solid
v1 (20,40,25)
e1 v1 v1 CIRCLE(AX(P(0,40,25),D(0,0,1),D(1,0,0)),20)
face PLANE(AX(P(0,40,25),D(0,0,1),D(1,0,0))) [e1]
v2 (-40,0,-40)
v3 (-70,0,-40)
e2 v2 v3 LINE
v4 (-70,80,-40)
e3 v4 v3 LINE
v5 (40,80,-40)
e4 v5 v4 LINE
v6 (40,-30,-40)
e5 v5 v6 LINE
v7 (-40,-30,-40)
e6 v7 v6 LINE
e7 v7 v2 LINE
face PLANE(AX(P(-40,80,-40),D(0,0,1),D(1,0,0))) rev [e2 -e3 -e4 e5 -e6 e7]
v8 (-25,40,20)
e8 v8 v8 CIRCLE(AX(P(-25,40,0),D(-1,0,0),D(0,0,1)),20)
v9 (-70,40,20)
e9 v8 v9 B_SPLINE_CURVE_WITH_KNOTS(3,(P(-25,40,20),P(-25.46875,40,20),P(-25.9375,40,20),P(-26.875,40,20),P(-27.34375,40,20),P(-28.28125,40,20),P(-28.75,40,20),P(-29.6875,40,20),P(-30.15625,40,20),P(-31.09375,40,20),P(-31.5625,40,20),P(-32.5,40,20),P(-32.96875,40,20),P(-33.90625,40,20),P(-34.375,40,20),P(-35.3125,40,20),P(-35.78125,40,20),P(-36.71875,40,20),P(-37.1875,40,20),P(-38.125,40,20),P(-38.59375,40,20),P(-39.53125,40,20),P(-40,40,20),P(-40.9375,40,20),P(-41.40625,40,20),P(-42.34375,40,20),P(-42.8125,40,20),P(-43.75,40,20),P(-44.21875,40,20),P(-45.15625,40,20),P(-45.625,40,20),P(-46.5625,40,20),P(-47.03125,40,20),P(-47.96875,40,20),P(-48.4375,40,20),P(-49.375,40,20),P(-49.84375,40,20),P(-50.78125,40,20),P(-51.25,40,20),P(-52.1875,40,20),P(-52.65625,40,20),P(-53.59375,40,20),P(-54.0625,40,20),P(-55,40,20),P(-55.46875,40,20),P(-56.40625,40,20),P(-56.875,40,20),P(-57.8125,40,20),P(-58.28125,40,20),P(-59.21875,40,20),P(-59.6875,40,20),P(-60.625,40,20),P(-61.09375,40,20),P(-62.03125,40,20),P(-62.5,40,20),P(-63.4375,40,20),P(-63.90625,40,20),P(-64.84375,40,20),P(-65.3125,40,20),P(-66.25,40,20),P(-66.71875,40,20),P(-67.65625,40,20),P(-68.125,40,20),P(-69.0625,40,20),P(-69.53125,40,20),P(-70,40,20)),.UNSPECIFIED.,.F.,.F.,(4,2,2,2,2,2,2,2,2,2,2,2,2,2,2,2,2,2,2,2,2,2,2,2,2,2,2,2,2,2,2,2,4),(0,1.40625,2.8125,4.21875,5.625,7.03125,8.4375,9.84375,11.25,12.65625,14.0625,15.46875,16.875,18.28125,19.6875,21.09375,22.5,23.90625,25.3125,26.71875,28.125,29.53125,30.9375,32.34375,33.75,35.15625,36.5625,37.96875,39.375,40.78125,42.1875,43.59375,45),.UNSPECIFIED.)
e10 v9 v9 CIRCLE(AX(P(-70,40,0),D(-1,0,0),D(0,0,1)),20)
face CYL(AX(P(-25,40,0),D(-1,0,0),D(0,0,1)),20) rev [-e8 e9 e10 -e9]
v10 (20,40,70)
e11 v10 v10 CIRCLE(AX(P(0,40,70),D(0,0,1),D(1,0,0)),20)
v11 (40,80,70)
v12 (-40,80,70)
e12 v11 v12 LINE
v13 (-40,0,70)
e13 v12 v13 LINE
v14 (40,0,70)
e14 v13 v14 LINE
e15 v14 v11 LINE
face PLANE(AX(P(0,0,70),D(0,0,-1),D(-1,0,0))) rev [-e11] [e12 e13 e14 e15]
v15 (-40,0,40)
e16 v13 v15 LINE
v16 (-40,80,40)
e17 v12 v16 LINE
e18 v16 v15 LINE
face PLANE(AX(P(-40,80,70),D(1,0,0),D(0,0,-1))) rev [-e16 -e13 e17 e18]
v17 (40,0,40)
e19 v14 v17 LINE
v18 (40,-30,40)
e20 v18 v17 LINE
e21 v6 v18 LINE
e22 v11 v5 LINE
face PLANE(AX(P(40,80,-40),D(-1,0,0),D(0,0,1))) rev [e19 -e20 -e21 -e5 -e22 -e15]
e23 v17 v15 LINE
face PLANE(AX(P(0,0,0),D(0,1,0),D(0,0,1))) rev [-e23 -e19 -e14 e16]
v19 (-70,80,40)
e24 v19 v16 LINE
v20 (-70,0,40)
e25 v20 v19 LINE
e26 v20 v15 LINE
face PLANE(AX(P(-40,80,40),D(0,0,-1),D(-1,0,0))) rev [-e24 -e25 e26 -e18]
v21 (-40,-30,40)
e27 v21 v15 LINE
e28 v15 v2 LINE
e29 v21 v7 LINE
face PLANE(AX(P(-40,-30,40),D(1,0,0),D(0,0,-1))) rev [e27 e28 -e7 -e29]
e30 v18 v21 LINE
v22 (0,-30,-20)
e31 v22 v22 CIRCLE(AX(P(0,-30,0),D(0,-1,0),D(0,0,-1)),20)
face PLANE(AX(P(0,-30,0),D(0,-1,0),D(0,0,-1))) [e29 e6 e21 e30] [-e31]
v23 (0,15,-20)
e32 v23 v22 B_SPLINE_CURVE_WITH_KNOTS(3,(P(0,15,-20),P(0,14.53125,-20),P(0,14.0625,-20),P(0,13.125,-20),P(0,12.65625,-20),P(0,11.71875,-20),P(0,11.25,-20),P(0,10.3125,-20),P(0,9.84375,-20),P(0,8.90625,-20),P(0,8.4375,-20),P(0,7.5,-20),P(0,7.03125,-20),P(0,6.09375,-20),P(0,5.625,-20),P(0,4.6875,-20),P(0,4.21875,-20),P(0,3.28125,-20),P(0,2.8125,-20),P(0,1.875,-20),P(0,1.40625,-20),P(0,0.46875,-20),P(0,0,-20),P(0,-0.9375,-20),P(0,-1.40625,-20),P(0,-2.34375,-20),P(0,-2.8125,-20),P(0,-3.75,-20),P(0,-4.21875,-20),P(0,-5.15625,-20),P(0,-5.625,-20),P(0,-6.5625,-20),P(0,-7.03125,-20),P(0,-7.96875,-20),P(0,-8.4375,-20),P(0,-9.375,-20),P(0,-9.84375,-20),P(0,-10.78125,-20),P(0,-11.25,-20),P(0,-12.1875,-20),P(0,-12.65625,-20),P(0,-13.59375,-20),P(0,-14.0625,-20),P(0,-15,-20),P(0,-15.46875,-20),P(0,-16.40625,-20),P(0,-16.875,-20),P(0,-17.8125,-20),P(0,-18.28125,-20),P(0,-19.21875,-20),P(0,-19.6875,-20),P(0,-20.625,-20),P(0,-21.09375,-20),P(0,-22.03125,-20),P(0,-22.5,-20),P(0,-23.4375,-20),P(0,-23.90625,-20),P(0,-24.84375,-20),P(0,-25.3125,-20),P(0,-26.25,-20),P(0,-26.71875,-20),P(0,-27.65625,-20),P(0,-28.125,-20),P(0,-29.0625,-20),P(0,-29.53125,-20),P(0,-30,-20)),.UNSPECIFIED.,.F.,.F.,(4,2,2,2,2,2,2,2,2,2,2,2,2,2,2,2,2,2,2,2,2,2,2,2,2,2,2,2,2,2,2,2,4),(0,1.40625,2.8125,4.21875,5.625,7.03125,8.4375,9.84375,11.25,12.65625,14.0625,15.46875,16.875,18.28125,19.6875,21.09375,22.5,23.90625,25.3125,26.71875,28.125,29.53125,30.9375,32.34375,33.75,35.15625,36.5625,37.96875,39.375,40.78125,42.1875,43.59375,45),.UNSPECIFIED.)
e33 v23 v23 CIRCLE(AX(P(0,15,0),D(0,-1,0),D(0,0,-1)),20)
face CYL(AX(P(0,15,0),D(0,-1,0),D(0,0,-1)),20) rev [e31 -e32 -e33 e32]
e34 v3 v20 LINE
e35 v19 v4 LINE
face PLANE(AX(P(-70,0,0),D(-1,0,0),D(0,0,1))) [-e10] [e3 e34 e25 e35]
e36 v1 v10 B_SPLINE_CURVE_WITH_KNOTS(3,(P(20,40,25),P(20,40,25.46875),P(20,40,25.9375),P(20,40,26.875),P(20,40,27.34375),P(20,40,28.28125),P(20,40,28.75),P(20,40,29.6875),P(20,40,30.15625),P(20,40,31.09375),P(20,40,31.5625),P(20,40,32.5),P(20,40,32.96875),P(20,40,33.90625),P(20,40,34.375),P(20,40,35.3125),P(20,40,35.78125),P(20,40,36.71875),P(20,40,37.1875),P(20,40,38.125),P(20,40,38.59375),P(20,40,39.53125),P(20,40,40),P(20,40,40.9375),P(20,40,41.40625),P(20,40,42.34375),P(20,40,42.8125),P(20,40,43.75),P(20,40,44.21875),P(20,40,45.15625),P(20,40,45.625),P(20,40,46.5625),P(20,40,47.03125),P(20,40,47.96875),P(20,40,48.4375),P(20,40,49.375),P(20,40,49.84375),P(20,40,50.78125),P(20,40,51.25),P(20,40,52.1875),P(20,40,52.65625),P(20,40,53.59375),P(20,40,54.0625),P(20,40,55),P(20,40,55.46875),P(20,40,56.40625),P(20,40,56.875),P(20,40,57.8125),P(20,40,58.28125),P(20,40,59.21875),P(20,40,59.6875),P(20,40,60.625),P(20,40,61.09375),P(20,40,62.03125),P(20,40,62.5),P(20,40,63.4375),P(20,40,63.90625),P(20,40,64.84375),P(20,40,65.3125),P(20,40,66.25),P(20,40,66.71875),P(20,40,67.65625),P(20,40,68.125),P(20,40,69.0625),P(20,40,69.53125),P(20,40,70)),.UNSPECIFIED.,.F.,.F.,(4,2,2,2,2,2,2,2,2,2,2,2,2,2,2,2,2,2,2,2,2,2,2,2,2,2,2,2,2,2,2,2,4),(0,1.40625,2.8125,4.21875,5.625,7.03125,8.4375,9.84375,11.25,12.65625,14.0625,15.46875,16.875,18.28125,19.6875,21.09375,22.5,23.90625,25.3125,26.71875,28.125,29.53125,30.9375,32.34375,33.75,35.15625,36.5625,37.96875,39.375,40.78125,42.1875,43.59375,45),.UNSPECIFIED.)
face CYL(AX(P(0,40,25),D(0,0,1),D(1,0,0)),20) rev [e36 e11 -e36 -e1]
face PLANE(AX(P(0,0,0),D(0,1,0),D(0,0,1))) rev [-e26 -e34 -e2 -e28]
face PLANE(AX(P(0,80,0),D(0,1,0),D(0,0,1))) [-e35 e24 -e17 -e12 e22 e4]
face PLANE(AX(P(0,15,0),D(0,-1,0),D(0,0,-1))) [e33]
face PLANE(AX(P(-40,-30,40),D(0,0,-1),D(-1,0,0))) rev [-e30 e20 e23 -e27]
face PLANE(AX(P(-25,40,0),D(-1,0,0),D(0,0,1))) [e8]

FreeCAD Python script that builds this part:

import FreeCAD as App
import Part
import Sketcher
Q = App.Units.Quantity


def add_polygon(sketch, points):
    """Adds a closed chain of lines whose ends are joined by coincident constraints."""
    first, n = sketch.GeometryCount, len(points)
    for a, b in zip(points, points[1:] + points[:1]):
        sketch.addGeometry(Part.LineSegment(App.Vector(*a, 0), App.Vector(*b, 0)), False)
    for i in range(n):
        sketch.addConstraint(Sketcher.Constraint("Coincident", first + i, 2, first + (i + 1) % n, 1))

doc = App.newDocument("Part")
params = doc.addObject("Spreadsheet::Sheet", "Params")
for row, (alias, value) in enumerate([
    ("sketch1_width", "80 mm"),
    ("pad1_length", "80 mm"),
    ("sketch2_width", "80 mm"),
    ("pad2_length", "30 mm"),
    ("sketch3_width", "80 mm"),
    ("pad3_length", "30 mm"),
    ("sketch4_width", "80 mm"),
    ("pad4_length", "30 mm"),
    ("sketch5_diameter", "40 mm"),
    ("pocket1_length", "45 mm"),
    ("sketch6_diameter", "40 mm"),
    ("pocket2_length", "45 mm"),
    ("sketch7_diameter", "40 mm"),
    ("pocket3_length", "45 mm"),
], start=1):
    params.set(f"A{row}", alias)
    params.set(f"B{row}", "=" + value)
    params.setAlias(f"B{row}", alias)

body = doc.addObject("PartDesign::Body", "Body")

# Sketch on XZ plane
sketch1 = body.newObject("Sketcher::SketchObject", "Sketch")
sketch1.AttachmentSupport = (doc.getObject("XZ_Plane"), [""])
sketch1.MapMode = "FlatFace"
add_polygon(sketch1, [(-40, -40), (-40, 40), (40, 40), (40, -40)])  # lines 0-3
sketch1.addConstraint([
    Sketcher.Constraint("Vertical", 0),
    Sketcher.Constraint("Horizontal", 1),
    Sketcher.Constraint("Vertical", 2),
    Sketcher.Constraint("Horizontal", 3),
    Sketcher.Constraint("Symmetric", 0, 2, 2, 2, -1, 1),
    Sketcher.Constraint("Equal", 3, 0),
    Sketcher.Constraint("DistanceX", 1, 1, 1, 2, Q("80 mm")),
])
sketch1.setExpression("Constraints[10]", "Params.sketch1_width")
pad1 = body.newObject("PartDesign::Pad", "Pad")
pad1.Profile = sketch1
pad1.setExpression("Length", "Params.pad1_length")
pad1.Reversed = True

# Sketch on YZ plane
sketch2 = body.newObject("Sketcher::SketchObject", "Sketch001")
sketch2.AttachmentSupport = (doc.getObject("YZ_Plane"), [""])
sketch2.MapMode = "FlatFace"
sketch2.AttachmentOffset = App.Placement(App.Vector(0, 0, -40), App.Rotation())
add_polygon(sketch2, [(80, -40), (0, -40), (0, 40), (80, 40)])  # lines 0-3
sketch2.addConstraint([
    Sketcher.Constraint("Horizontal", 0),
    Sketcher.Constraint("Vertical", 1),
    Sketcher.Constraint("Horizontal", 2),
    Sketcher.Constraint("Vertical", 3),
    Sketcher.Constraint("Symmetric", 0, 2, 1, 2, -1, 1),
    Sketcher.Constraint("Equal", 2, 1),
    Sketcher.Constraint("DistanceX", 0, 2, 0, 1, Q("80 mm")),
])
sketch2.setExpression("Constraints[10]", "Params.sketch2_width")
pad2 = body.newObject("PartDesign::Pad", "Pad001")
pad2.Profile = sketch2
pad2.setExpression("Length", "Params.pad2_length")
pad2.Reversed = True

# Sketch on XY plane
sketch3 = body.newObject("Sketcher::SketchObject", "Sketch002")
sketch3.AttachmentSupport = (doc.getObject("XY_Plane"), [""])
sketch3.MapMode = "FlatFace"
sketch3.AttachmentOffset = App.Placement(App.Vector(0, 0, 40), App.Rotation())
add_polygon(sketch3, [(-40, 80), (-40, 0), (40, 0), (40, 80)])  # lines 0-3
sketch3.addConstraint([
    Sketcher.Constraint("Vertical", 0),
    Sketcher.Constraint("Horizontal", 1),
    Sketcher.Constraint("Vertical", 2),
    Sketcher.Constraint("Horizontal", 3),
    Sketcher.Constraint("Symmetric", 0, 2, 1, 2, -1, 1),
    Sketcher.Constraint("Equal", 3, 0),
    Sketcher.Constraint("DistanceX", 1, 1, 1, 2, Q("80 mm")),
])
sketch3.setExpression("Constraints[10]", "Params.sketch3_width")
pad3 = body.newObject("PartDesign::Pad", "Pad002")
pad3.Profile = sketch3
pad3.setExpression("Length", "Params.pad3_length")

# Sketch on XZ plane
sketch4 = body.newObject("Sketcher::SketchObject", "Sketch003")
sketch4.AttachmentSupport = (doc.getObject("XZ_Plane"), [""])
sketch4.MapMode = "FlatFace"
add_polygon(sketch4, [(-40, 40), (-40, -40), (40, -40), (40, 40)])  # lines 0-3
sketch4.addConstraint([
    Sketcher.Constraint("Vertical", 0),
    Sketcher.Constraint("Horizontal", 1),
    Sketcher.Constraint("Vertical", 2),
    Sketcher.Constraint("Horizontal", 3),
    Sketcher.Constraint("Symmetric", 0, 2, 2, 2, -1, 1),
    Sketcher.Constraint("Equal", 3, 0),
    Sketcher.Constraint("DistanceX", 1, 1, 1, 2, Q("80 mm")),
])
sketch4.setExpression("Constraints[10]", "Params.sketch4_width")
pad4 = body.newObject("PartDesign::Pad", "Pad003")
pad4.Profile = sketch4
pad4.setExpression("Length", "Params.pad4_length")

# Sketch on YZ plane
sketch5 = body.newObject("Sketcher::SketchObject", "Sketch004")
sketch5.AttachmentSupport = (doc.getObject("YZ_Plane"), [""])
sketch5.MapMode = "FlatFace"
sketch5.AttachmentOffset = App.Placement(App.Vector(0, 0, -70), App.Rotation())
sketch5.addGeometry(Part.Circle(App.Vector(40, 0, 0), App.Vector(0, 0, 1), 20), False)
sketch5.addConstraint([
    Sketcher.Constraint("PointOnObject", 0, 3, -1),
    Sketcher.Constraint("Diameter", 0, Q("40 mm")),
    Sketcher.Constraint("DistanceX", -1, 1, 0, 3, Q("40 mm")),
])
sketch5.setExpression("Constraints[1]", "Params.sketch5_diameter")
pocket1 = body.newObject("PartDesign::Pocket", "Pocket")
pocket1.Profile = sketch5
pocket1.setExpression("Length", "Params.pocket1_length")
pocket1.Reversed = True

# Sketch on XY plane
sketch6 = body.newObject("Sketcher::SketchObject", "Sketch005")
sketch6.AttachmentSupport = (doc.getObject("XY_Plane"), [""])
sketch6.MapMode = "FlatFace"
sketch6.AttachmentOffset = App.Placement(App.Vector(0, 0, 70), App.Rotation())
sketch6.addGeometry(Part.Circle(App.Vector(0, 40, 0), App.Vector(0, 0, 1), 20), False)
sketch6.addConstraint([
    Sketcher.Constraint("PointOnObject", 0, 3, -2),
    Sketcher.Constraint("Diameter", 0, Q("40 mm")),
    Sketcher.Constraint("DistanceY", -1, 1, 0, 3, Q("40 mm")),
])
sketch6.setExpression("Constraints[1]", "Params.sketch6_diameter")
pocket2 = body.newObject("PartDesign::Pocket", "Pocket001")
pocket2.Profile = sketch6
pocket2.setExpression("Length", "Params.pocket2_length")

# Sketch on XZ plane
sketch7 = body.newObject("Sketcher::SketchObject", "Sketch006")
sketch7.AttachmentSupport = (doc.getObject("XZ_Plane"), [""])
sketch7.MapMode = "FlatFace"
sketch7.AttachmentOffset = App.Placement(App.Vector(0, 0, 30), App.Rotation())
sketch7.addGeometry(Part.Circle(App.Vector(0, 0, 0), App.Vector(0, 0, 1), 20), False)
sketch7.addConstraint([
    Sketcher.Constraint("Coincident", 0, 3, -1, 1),
    Sketcher.Constraint("Diameter", 0, Q("40 mm")),
])
sketch7.setExpression("Constraints[1]", "Params.sketch7_diameter")
pocket3 = body.newObject("PartDesign::Pocket", "Pocket002")
pocket3.Profile = sketch7
pocket3.setExpression("Length", "Params.pocket3_length")

doc.recompute()
